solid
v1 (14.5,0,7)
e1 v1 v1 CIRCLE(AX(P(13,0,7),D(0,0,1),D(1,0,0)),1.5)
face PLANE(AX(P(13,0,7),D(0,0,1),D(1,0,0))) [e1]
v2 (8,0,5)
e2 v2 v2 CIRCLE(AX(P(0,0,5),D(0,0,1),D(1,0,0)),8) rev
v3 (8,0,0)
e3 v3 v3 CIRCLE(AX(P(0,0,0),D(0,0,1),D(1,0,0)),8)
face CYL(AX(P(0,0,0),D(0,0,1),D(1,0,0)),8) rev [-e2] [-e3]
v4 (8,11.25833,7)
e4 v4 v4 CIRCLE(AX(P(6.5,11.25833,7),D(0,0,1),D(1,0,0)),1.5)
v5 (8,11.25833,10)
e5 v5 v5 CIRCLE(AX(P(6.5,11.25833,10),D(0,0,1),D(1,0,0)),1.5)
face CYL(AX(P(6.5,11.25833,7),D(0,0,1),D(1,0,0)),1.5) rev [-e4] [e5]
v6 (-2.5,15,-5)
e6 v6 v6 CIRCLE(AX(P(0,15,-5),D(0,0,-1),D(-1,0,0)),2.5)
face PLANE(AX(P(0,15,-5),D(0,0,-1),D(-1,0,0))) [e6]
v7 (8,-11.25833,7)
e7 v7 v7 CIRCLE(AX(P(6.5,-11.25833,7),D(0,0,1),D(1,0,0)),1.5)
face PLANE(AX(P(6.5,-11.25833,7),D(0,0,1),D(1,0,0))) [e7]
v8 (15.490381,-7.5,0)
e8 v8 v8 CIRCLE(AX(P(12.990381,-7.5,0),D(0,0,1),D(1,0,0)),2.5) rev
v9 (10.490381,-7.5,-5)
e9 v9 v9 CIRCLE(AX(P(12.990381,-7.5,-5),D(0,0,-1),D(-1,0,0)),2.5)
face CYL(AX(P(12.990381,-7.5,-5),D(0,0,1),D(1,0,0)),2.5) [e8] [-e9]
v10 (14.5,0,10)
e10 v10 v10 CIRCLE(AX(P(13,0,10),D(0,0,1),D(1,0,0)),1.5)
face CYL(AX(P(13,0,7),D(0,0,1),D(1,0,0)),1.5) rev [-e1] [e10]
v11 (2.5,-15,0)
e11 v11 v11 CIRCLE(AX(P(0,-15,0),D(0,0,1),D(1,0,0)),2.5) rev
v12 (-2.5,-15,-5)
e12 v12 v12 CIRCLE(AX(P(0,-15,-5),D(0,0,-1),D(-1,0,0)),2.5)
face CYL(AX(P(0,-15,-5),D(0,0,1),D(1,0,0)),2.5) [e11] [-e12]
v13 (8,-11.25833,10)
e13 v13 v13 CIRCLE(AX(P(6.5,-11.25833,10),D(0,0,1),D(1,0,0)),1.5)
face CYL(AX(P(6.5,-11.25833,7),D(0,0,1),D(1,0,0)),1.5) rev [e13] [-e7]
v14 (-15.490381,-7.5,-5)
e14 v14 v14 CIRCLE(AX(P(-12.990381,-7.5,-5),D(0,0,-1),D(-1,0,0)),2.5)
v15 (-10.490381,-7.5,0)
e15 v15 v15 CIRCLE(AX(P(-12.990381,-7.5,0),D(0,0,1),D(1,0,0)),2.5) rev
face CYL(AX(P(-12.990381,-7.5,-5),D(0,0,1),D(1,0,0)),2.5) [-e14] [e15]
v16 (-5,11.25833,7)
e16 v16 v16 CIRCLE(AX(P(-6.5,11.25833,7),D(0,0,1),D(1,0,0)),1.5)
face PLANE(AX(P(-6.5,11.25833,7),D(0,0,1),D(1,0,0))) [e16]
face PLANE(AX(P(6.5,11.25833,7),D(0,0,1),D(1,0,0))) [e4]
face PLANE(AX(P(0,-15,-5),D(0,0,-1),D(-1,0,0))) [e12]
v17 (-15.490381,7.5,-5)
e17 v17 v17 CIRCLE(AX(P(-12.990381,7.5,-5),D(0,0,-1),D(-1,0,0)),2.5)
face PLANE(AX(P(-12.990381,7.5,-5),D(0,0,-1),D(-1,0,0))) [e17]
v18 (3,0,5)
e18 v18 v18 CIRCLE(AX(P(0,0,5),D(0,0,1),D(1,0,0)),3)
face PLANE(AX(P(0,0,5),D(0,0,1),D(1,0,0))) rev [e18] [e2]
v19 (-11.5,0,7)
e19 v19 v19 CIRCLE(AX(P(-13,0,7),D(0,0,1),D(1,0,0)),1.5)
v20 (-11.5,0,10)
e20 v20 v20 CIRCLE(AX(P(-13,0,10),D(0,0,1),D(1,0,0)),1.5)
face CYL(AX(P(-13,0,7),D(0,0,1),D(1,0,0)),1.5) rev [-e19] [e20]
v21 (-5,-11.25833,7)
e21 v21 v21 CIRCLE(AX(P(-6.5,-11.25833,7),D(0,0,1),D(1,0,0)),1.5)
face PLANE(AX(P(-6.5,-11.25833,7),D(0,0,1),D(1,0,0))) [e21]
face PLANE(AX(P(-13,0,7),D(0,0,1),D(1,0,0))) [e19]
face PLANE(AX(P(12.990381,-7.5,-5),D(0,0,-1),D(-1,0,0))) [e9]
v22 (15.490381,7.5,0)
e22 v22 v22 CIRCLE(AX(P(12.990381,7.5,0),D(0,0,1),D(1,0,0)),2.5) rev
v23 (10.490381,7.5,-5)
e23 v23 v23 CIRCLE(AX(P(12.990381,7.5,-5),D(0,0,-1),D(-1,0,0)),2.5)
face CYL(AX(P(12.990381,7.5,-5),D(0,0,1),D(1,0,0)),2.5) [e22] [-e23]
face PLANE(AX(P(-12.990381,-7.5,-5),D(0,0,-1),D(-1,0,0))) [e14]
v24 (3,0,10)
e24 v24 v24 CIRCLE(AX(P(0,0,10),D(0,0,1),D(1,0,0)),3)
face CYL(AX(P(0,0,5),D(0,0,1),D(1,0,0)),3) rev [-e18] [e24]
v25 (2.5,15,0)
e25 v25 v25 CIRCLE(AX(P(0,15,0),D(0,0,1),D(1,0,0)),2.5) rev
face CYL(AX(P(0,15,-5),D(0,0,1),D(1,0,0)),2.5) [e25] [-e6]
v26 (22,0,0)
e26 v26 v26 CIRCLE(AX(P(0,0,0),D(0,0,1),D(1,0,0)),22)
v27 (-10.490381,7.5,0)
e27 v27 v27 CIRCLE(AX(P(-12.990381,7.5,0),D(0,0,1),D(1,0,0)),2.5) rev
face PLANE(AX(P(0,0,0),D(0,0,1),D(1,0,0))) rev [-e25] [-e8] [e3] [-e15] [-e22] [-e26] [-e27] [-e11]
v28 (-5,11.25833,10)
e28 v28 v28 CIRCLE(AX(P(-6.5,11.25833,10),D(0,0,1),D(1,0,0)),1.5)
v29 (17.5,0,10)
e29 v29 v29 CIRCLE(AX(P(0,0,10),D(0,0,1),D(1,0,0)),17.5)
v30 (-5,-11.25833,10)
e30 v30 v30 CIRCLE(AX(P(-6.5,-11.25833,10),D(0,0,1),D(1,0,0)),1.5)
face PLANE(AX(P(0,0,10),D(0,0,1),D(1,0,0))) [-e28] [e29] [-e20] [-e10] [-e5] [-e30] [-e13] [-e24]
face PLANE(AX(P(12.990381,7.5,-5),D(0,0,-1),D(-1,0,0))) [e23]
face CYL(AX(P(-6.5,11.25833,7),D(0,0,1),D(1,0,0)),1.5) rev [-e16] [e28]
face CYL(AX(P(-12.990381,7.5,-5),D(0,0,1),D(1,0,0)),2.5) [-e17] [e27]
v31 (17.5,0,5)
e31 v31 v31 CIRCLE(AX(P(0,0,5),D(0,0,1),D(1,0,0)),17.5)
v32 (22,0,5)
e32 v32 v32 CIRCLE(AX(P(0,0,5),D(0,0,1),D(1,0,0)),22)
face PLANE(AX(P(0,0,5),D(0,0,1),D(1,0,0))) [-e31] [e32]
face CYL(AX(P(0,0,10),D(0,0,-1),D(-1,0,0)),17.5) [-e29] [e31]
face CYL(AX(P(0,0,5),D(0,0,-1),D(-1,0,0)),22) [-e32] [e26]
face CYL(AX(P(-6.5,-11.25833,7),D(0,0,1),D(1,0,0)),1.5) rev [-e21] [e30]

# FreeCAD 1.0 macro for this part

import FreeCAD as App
import Part
import Sketcher
from FreeCAD import Vector

doc = App.newDocument("Part")
body = doc.addObject("PartDesign::Body", "Body")

# Sketch on XY plane
sketch1 = body.newObject("Sketcher::SketchObject", "Sketch")
sketch1.AttachmentSupport = (doc.getObject("XY_Plane"), [""])
sketch1.MapMode = "FlatFace"
sketch1.addGeometry(Part.Circle(Vector(0, 0, 0), Vector(0, 0, 1), 22), False)
sketch1.addConstraint(Sketcher.Constraint("Coincident", 0, 3, -1, 1))
sketch1.addConstraint(Sketcher.Constraint("Diameter", 0, 44.0))
pad1 = body.newObject("PartDesign::Pad", "Pad")
pad1.Profile = sketch1
pad1.Length = 5

# Sketch on XY plane
sketch2 = body.newObject("Sketcher::SketchObject", "Sketch001")
sketch2.AttachmentSupport = (doc.getObject("XY_Plane"), [""])
sketch2.MapMode = "FlatFace"
sketch2.AttachmentOffset = App.Placement(Vector(0, 0, 5), App.Rotation())
sketch2.addGeometry(Part.Circle(Vector(0, 0, 0), Vector(0, 0, 1), 17.5), False)
sketch2.addConstraint(Sketcher.Constraint("Coincident", 0, 3, -1, 1))
sketch2.addConstraint(Sketcher.Constraint("Diameter", 0, 35.0))
pad2 = body.newObject("PartDesign::Pad", "Pad001")
pad2.Profile = sketch2
pad2.Length = 5

# Sketch on XY plane
sketch3 = body.newObject("Sketcher::SketchObject", "Sketch002")
sketch3.AttachmentSupport = (doc.getObject("XY_Plane"), [""])
sketch3.MapMode = "FlatFace"
sketch3.AttachmentOffset = App.Placement(Vector(0, 0, 10), App.Rotation())
sketch3.addGeometry(Part.Circle(Vector(0, 0, 0), Vector(0, 0, 1), 8), False)
sketch3.addConstraint(Sketcher.Constraint("Coincident", 0, 3, -1, 1))
sketch3.addConstraint(Sketcher.Constraint("Diameter", 0, 16.0))
pocket1 = body.newObject("PartDesign::Pocket", "Pocket")
pocket1.Profile = sketch3
pocket1.Length = 10

# Sketch on XY plane
sketch4 = body.newObject("Sketcher::SketchObject", "Sketch003")
sketch4.AttachmentSupport = (doc.getObject("XY_Plane"), [""])
sketch4.MapMode = "FlatFace"
sketch4.AttachmentOffset = App.Placement(Vector(0, 0, 10), App.Rotation())
sketch4.addGeometry(Part.Circle(Vector(13, 0, 0), Vector(0, 0, 1), 1.5), False)
sketch4.addGeometry(Part.Circle(Vector(6.5, -11.25833, 0), Vector(0, 0, 1), 1.5), False)
sketch4.addGeometry(Part.Circle(Vector(-6.5, -11.25833, 0), Vector(0, 0, 1), 1.5), False)
sketch4.addGeometry(Part.Circle(Vector(-13, 0, 0), Vector(0, 0, 1), 1.5), False)
sketch4.addGeometry(Part.Circle(Vector(-6.5, 11.25833, 0), Vector(0, 0, 1), 1.5), False)
sketch4.addGeometry(Part.Circle(Vector(6.5, 11.25833, 0), Vector(0, 0, 1), 1.5), False)
sketch4.addConstraint(Sketcher.Constraint("Equal", 0, 1))
sketch4.addConstraint(Sketcher.Constraint("Equal", 1, 2))
sketch4.addConstraint(Sketcher.Constraint("Equal", 2, 3))
sketch4.addConstraint(Sketcher.Constraint("Equal", 3, 4))
sketch4.addConstraint(Sketcher.Constraint("Equal", 4, 5))
sketch4.addConstraint(Sketcher.Constraint("Symmetric", 0, 3, 3, 3, -1, 1))
sketch4.addConstraint(Sketcher.Constraint("Symmetric", 1, 3, 4, 3, -1, 1))
sketch4.addConstraint(Sketcher.Constraint("Symmetric", 2, 3, 5, 3, -1, 1))
sketch4.addConstraint(Sketcher.Constraint("Symmetric", 1, 3, 2, 3, -2))
sketch4.addConstraint(Sketcher.Constraint("PointOnObject", 0, 3, -1))
sketch4.addConstraint(Sketcher.Constraint("Diameter", 0, 3.0))
sketch4.addConstraint(Sketcher.Constraint("DistanceX", -1, 1, 0, 3, 13.0))
sketch4.addConstraint(Sketcher.Constraint("DistanceX", 2, 3, 1, 3, 13.0))
sketch4.addConstraint(Sketcher.Constraint("DistanceY", 1, 3, -1, 1, 11.25833))
pocket2 = body.newObject("PartDesign::Pocket", "Pocket001")
pocket2.Profile = sketch4
pocket2.Length = 3

# Sketch on XY plane
sketch5 = body.newObject("Sketcher::SketchObject", "Sketch004")
sketch5.AttachmentSupport = (doc.getObject("XY_Plane"), [""])
sketch5.MapMode = "FlatFace"
sketch5.addGeometry(Part.Circle(Vector(0, 15, 0), Vector(0, 0, 1), 2.5), False)
sketch5.addGeometry(Part.Circle(Vector(-12.990381, 7.5, 0), Vector(0, 0, 1), 2.5), False)
sketch5.addGeometry(Part.Circle(Vector(-12.990381, -7.5, 0), Vector(0, 0, 1), 2.5), False)
sketch5.addGeometry(Part.Circle(Vector(0, -15, 0), Vector(0, 0, 1), 2.5), False)
sketch5.addGeometry(Part.Circle(Vector(12.990381, -7.5, 0), Vector(0, 0, 1), 2.5), False)
sketch5.addGeometry(Part.Circle(Vector(12.990381, 7.5, 0), Vector(0, 0, 1), 2.5), False)
sketch5.addConstraint(Sketcher.Constraint("Equal", 0, 1))
sketch5.addConstraint(Sketcher.Constraint("Equal", 1, 2))
sketch5.addConstraint(Sketcher.Constraint("Equal", 2, 3))
sketch5.addConstraint(Sketcher.Constraint("Equal", 3, 4))
sketch5.addConstraint(Sketcher.Constraint("Equal", 4, 5))
sketch5.addConstraint(Sketcher.Constraint("Symmetric", 0, 3, 3, 3, -1, 1))
sketch5.addConstraint(Sketcher.Constraint("Symmetric", 1, 3, 4, 3, -1, 1))
sketch5.addConstraint(Sketcher.Constraint("Symmetric", 2, 3, 5, 3, -1, 1))
sketch5.addConstraint(Sketcher.Constraint("Symmetric", 2, 3, 4, 3, -2))
sketch5.addConstraint(Sketcher.Constraint("PointOnObject", 0, 3, -2))
sketch5.addConstraint(Sketcher.Constraint("Diameter", 0, 5.0))
sketch5.addConstraint(Sketcher.Constraint("DistanceY", -1, 1, 0, 3, 15.0))
sketch5.addConstraint(Sketcher.Constraint("DistanceY", 2, 3, 1, 3, 15.0))
sketch5.addConstraint(Sketcher.Constraint("DistanceX", 1, 3, -1, 1, 12.990381))
pad3 = body.newObject("PartDesign::Pad", "Pad002")
pad3.Profile = sketch5
pad3.Length = 5
pad3.Reversed = True

# Sketch on XY plane
sketch6 = body.newObject("Sketcher::SketchObject", "Sketch005")
sketch6.AttachmentSupport = (doc.getObject("XY_Plane"), [""])
sketch6.MapMode = "FlatFace"
sketch6.AttachmentOffset = App.Placement(Vector(0, 0, 10), App.Rotation())
sketch6.addGeometry(Part.Circle(Vector(0, 0, 0), Vector(0, 0, 1), 8), False)
sketch6.addGeometry(Part.Circle(Vector(0, 0, 0), Vector(0, 0, 1), 3), False)
sketch6.addConstraint(Sketcher.Constraint("Coincident", 0, 3, -1, 1))
sketch6.addConstraint(Sketcher.Constraint("Coincident", 1, 3, -1, 1))
sketch6.addConstraint(Sketcher.Constraint("Diameter", 0, 16.0))
sketch6.addConstraint(Sketcher.Constraint("Diameter", 1, 6.0))
pad4 = body.newObject("PartDesign::Pad", "Pad003")
pad4.Profile = sketch6
pad4.Length = 5
pad4.Reversed = True

doc.recompute()
